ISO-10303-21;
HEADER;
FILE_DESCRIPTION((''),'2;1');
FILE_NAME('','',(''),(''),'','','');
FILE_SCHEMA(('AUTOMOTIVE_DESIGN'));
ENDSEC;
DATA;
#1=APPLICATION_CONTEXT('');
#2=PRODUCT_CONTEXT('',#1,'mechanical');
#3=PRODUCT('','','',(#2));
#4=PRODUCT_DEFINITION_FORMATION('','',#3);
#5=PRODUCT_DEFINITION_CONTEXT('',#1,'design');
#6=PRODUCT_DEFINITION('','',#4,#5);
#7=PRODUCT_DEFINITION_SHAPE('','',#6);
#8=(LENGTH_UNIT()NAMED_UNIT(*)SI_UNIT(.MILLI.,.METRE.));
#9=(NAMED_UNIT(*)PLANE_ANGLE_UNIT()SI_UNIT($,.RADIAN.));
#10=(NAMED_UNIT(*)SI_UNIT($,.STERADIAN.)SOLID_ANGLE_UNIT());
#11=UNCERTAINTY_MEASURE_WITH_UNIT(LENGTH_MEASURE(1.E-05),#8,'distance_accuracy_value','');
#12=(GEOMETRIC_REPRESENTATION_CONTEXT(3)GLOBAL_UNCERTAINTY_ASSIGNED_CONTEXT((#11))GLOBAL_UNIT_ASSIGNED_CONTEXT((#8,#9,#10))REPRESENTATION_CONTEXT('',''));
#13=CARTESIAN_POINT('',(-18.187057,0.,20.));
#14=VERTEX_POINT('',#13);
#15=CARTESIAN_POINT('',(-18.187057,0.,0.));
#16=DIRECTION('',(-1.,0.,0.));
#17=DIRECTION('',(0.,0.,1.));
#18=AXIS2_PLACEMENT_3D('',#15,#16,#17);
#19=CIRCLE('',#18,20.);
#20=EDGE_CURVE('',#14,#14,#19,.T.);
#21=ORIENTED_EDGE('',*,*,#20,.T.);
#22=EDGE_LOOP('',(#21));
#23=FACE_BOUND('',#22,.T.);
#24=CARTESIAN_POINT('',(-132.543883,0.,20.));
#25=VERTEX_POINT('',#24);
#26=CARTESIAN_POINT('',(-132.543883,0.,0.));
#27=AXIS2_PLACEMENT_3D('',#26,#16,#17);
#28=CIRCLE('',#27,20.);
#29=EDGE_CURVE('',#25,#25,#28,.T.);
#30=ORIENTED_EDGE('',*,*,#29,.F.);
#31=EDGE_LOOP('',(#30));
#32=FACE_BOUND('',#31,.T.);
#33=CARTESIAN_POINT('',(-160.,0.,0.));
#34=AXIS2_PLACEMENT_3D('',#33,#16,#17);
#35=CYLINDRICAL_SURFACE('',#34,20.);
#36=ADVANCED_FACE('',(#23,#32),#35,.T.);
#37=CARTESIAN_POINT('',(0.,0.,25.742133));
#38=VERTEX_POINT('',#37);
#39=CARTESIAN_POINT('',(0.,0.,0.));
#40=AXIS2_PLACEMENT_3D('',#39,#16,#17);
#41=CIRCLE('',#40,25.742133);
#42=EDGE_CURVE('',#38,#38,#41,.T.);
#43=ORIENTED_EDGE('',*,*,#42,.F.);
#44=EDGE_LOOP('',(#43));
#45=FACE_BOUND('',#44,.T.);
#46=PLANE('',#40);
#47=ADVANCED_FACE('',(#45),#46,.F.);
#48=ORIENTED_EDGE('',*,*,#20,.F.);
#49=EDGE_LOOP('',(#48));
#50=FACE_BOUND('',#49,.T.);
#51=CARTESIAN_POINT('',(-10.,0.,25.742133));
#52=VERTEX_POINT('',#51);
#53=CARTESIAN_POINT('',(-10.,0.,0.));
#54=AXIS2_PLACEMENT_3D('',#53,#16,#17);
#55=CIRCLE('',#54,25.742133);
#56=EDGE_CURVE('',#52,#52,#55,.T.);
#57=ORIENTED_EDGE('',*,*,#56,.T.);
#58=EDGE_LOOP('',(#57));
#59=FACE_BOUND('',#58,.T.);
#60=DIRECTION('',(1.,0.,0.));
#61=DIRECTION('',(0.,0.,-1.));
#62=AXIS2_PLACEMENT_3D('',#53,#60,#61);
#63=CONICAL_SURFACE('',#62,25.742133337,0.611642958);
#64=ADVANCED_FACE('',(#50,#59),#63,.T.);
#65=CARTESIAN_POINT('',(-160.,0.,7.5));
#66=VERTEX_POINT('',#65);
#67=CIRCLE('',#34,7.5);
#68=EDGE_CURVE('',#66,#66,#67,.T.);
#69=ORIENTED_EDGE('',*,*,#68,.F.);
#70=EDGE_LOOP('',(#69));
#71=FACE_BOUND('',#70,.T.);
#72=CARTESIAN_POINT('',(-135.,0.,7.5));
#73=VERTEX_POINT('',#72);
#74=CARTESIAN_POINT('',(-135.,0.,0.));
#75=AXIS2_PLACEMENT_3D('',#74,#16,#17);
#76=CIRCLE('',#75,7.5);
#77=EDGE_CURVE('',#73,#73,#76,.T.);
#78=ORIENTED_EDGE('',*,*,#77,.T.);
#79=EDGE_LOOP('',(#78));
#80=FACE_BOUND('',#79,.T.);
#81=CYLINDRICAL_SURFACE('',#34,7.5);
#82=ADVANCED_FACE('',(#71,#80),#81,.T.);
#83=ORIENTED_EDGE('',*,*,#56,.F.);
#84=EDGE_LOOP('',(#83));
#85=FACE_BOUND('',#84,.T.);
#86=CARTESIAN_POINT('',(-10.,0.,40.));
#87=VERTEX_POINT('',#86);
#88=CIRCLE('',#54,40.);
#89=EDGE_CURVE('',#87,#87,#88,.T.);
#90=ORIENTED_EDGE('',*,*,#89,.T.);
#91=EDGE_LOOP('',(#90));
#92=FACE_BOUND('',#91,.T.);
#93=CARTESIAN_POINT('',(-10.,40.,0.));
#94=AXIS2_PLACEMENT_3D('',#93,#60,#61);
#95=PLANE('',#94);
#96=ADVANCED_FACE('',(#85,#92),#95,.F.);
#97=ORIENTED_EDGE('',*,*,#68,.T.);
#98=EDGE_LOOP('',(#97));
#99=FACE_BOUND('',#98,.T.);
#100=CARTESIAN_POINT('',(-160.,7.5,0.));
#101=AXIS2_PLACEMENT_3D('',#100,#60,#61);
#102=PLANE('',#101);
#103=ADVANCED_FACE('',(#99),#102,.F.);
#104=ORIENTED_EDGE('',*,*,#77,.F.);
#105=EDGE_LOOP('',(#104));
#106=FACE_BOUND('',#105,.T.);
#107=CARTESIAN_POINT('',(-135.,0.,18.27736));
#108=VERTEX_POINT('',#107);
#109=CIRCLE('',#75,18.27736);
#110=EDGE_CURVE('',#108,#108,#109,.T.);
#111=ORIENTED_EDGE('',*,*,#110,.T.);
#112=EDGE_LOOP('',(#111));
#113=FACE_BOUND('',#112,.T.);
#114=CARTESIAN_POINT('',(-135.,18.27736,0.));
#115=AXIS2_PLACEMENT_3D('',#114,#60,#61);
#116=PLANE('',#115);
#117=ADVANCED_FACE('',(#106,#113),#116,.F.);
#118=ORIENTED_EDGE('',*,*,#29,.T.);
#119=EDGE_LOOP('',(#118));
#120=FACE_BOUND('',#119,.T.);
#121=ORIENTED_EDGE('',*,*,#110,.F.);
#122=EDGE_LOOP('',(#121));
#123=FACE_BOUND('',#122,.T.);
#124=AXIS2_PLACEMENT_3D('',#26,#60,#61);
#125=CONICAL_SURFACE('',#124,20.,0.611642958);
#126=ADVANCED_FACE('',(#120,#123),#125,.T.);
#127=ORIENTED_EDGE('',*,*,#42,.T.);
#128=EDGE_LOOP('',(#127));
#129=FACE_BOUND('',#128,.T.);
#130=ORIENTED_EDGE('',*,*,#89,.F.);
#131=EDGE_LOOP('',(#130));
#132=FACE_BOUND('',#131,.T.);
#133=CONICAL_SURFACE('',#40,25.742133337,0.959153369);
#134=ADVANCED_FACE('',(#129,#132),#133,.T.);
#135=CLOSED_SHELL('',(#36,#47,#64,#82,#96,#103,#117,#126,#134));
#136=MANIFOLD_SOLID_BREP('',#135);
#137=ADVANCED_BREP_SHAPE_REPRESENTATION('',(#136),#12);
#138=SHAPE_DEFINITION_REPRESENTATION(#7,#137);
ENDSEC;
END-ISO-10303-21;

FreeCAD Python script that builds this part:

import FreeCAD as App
import Part
import Sketcher
from FreeCAD import Vector


def add_polygon(sketch, points):
    """Adds a closed chain of lines whose ends are joined by coincident constraints."""
    first, n = sketch.GeometryCount, len(points)
    for a, b in zip(points, points[1:] + points[:1]):
        sketch.addGeometry(Part.LineSegment(App.Vector(*a, 0), App.Vector(*b, 0)), False)
    for i in range(n):
        sketch.addConstraint(Sketcher.Constraint("Coincident", first + i, 2, first + (i + 1) % n, 1))

doc = App.newDocument("Part")
body = doc.addObject("PartDesign::Body", "Body")

# Sketch on XY plane
sketch1 = body.newObject("Sketcher::SketchObject", "Sketch")
sketch1.AttachmentSupport = (doc.getObject("XY_Plane"), [""])
sketch1.MapMode = "FlatFace"
add_polygon(sketch1, [(0, 0), (0, 25.7), (-10, 40), (-10, 25.7), (-18.2, 20), (-132.5, 20), (-135, 18.3), (-135, 7.5), (-160, 7.5), (-160, 0)])  # lines 0-9
sketch1.addConstraint([
    Sketcher.Constraint("Vertical", 0),
    Sketcher.Constraint("Vertical", 2),
    Sketcher.Constraint("Horizontal", 4),
    Sketcher.Constraint("Vertical", 6),
    Sketcher.Constraint("Horizontal", 7),
    Sketcher.Constraint("Vertical", 8),
    Sketcher.Constraint("Horizontal", 9),
    Sketcher.Constraint("Coincident", 9, 2, -1, 1),
    Sketcher.Constraint("Perpendicular", 1, 3),
    Sketcher.Constraint("Parallel", 3, 5),
    Sketcher.Constraint("Horizontal", 0, 2, 2, 2),
    Sketcher.Constraint("DistanceX", 7, 2, 7, 1, 25.0),
    Sketcher.Constraint("DistanceX", 9, 1, 9, 2, 160.0),
    Sketcher.Constraint("Distance", 3, 10.0),
    Sketcher.Constraint("Distance", 5, 3.0),
    Sketcher.Constraint("DistanceY", 8, 2, 8, 1, 7.5),
    Sketcher.Constraint("DistanceX", 1, 2, -1, 1, 10.0),
    Sketcher.Constraint("DistanceY", -1, 1, 1, 2, 40.0),
    Sketcher.Constraint("DistanceY", -1, 1, 3, 2, 20.0),
])
revolution = body.newObject("PartDesign::Revolution", "Revolution")
revolution.Profile = sketch1
revolution.ReferenceAxis = (sketch1, ["H_Axis"])
revolution.Angle = 360

doc.recompute()
